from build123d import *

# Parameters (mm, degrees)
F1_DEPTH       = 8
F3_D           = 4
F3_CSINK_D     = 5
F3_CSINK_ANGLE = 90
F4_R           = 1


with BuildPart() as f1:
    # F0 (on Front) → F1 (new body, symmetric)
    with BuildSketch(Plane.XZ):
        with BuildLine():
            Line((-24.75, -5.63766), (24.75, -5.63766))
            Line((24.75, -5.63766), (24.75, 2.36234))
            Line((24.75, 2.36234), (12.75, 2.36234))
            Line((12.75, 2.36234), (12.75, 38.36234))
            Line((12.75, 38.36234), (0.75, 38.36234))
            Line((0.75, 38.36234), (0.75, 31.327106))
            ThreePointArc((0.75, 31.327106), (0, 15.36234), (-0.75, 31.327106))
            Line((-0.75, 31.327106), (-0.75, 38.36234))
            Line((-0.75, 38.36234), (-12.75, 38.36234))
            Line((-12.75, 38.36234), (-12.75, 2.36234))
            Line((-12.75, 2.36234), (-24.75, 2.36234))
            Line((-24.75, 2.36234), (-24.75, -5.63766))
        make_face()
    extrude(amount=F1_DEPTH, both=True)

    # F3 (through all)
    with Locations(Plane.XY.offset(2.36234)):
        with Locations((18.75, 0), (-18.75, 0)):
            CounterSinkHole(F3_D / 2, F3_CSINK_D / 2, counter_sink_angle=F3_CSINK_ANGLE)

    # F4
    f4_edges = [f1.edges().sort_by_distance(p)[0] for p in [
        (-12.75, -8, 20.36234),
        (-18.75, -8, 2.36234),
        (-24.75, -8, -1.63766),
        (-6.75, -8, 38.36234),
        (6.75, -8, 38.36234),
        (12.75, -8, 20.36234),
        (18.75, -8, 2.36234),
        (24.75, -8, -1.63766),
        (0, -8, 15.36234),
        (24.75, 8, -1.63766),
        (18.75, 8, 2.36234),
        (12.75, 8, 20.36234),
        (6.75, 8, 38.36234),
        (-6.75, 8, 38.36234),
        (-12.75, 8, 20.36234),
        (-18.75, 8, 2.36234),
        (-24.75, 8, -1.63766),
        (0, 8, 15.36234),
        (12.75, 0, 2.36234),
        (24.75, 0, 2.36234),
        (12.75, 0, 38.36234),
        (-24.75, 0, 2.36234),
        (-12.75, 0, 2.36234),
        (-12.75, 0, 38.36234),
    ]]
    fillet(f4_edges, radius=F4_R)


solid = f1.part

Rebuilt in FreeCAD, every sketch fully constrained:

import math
import FreeCAD as App
import Part
import Sketcher
from FreeCAD import Vector


def edges_at(feature, points):
    """Names of the edges that pass closest to the given points."""
    edges = feature.Shape.Edges
    near = lambda p: min(range(len(edges)), key=lambda i: edges[i].distToShape(Part.Vertex(*p))[0])
    return sorted({f"Edge{near(p) + 1}" for p in points})

doc = App.newDocument("Part")
body = doc.addObject("PartDesign::Body", "Body")

sketch1 = doc.addObject("Sketcher::SketchObject", "Sketch")
body.addObject(sketch1)
sketch1.AttachmentSupport = (doc.XZ_Plane, [""])
sketch1.MapMode = "FlatFace"
sketch1.addGeometry(Part.LineSegment(Vector(-24.75, -5.63766, 0), Vector(24.75, -5.63766, 0)), False)
sketch1.addGeometry(Part.LineSegment(Vector(24.75, -5.63766, 0), Vector(24.75, 2.36234, 0)), False)
sketch1.addGeometry(Part.LineSegment(Vector(24.75, 2.36234, 0), Vector(12.75, 2.36234, 0)), False)
sketch1.addGeometry(Part.LineSegment(Vector(12.75, 2.36234, 0), Vector(12.75, 38.36234, 0)), False)
sketch1.addGeometry(Part.LineSegment(Vector(12.75, 38.36234, 0), Vector(0.75, 38.36234, 0)), False)
sketch1.addGeometry(Part.LineSegment(Vector(0.75, 38.36234, 0), Vector(0.75, 31.327106, 0)), False)
sketch1.addGeometry(Part.ArcOfCircle(Part.Circle(Vector(0, 23.36234, 0), Vector(0, 0, 1), 8), math.radians(95.379379), math.radians(444.620621)), False)
sketch1.addGeometry(Part.LineSegment(Vector(-0.75, 31.327106, 0), Vector(-0.75, 38.36234, 0)), False)
sketch1.addGeometry(Part.LineSegment(Vector(-0.75, 38.36234, 0), Vector(-12.75, 38.36234, 0)), False)
sketch1.addGeometry(Part.LineSegment(Vector(-12.75, 38.36234, 0), Vector(-12.75, 2.36234, 0)), False)
sketch1.addGeometry(Part.LineSegment(Vector(-12.75, 2.36234, 0), Vector(-24.75, 2.36234, 0)), False)
sketch1.addGeometry(Part.LineSegment(Vector(-24.75, 2.36234, 0), Vector(-24.75, -5.63766, 0)), False)
sketch1.addConstraint(Sketcher.Constraint("Coincident", 0, 2, 1, 1))
sketch1.addConstraint(Sketcher.Constraint("Coincident", 1, 2, 2, 1))
sketch1.addConstraint(Sketcher.Constraint("Coincident", 2, 2, 3, 1))
sketch1.addConstraint(Sketcher.Constraint("Coincident", 3, 2, 4, 1))
sketch1.addConstraint(Sketcher.Constraint("Coincident", 4, 2, 5, 1))
sketch1.addConstraint(Sketcher.Constraint("Coincident", 5, 2, 6, 2))
sketch1.addConstraint(Sketcher.Constraint("Coincident", 6, 1, 7, 1))
sketch1.addConstraint(Sketcher.Constraint("Coincident", 7, 2, 8, 1))
sketch1.addConstraint(Sketcher.Constraint("Coincident", 8, 2, 9, 1))
sketch1.addConstraint(Sketcher.Constraint("Coincident", 9, 2, 10, 1))
sketch1.addConstraint(Sketcher.Constraint("Coincident", 10, 2, 11, 1))
sketch1.addConstraint(Sketcher.Constraint("Coincident", 11, 2, 0, 1))
sketch1.addConstraint(Sketcher.Constraint("Horizontal", 0))
sketch1.addConstraint(Sketcher.Constraint("Vertical", 1))
sketch1.addConstraint(Sketcher.Constraint("Horizontal", 2))
sketch1.addConstraint(Sketcher.Constraint("Vertical", 3))
sketch1.addConstraint(Sketcher.Constraint("Horizontal", 4))
sketch1.addConstraint(Sketcher.Constraint("Vertical", 5))
sketch1.addConstraint(Sketcher.Constraint("Vertical", 7))
sketch1.addConstraint(Sketcher.Constraint("Horizontal", 8))
sketch1.addConstraint(Sketcher.Constraint("Vertical", 9))
sketch1.addConstraint(Sketcher.Constraint("Horizontal", 10))
sketch1.addConstraint(Sketcher.Constraint("Vertical", 11))
sketch1.addConstraint(Sketcher.Constraint("Symmetric", 5, 2, 6, 1, -2))
sketch1.addConstraint(Sketcher.Constraint("Symmetric", 3, 2, 8, 2, -2))
sketch1.addConstraint(Sketcher.Constraint("Symmetric", 1, 2, 10, 2, -2))
sketch1.addConstraint(Sketcher.Constraint("Equal", 2, 4))
sketch1.addConstraint(Sketcher.Constraint("Radius", 6, 8.0))
sketch1.addConstraint(Sketcher.Constraint("DistanceX", 2, 2, 2, 1, 12.0))
sketch1.addConstraint(Sketcher.Constraint("DistanceY", 1, 1, 1, 2, 8.0))
sketch1.addConstraint(Sketcher.Constraint("DistanceY", 3, 1, 3, 2, 36.0))
sketch1.addConstraint(Sketcher.Constraint("DistanceX", 0, 1, 0, 2, 49.5))
sketch1.addConstraint(Sketcher.Constraint("DistanceY", 0, 2, 6, 3, 29.0))
sketch1.addConstraint(Sketcher.Constraint("DistanceY", -1, 1, 6, 3, 23.36234))
pad1 = doc.addObject("PartDesign::Pad", "Pad")
body.addObject(pad1)
pad1.Profile = sketch1
pad1.Length = 16
pad1.Midplane = True

sketch2 = doc.addObject("Sketcher::SketchObject", "Sketch001")
body.addObject(sketch2)
sketch2.AttachmentSupport = (doc.XY_Plane, [""])
sketch2.MapMode = "FlatFace"
sketch2.AttachmentOffset = App.Placement(Vector(0, 0, 2.36234), App.Rotation())
sketch2.addGeometry(Part.Circle(Vector(18.75, 0, 0), Vector(0, 0, 1), 2), False)
sketch2.addGeometry(Part.Circle(Vector(-18.75, 0, 0), Vector(0, 0, 1), 2), False)
sketch2.addConstraint(Sketcher.Constraint("Equal", 0, 1))
sketch2.addConstraint(Sketcher.Constraint("Symmetric", 0, 3, 1, 3, -1, 1))
sketch2.addConstraint(Sketcher.Constraint("PointOnObject", 0, 3, -1))
sketch2.addConstraint(Sketcher.Constraint("Diameter", 0, 4.0))
sketch2.addConstraint(Sketcher.Constraint("DistanceX", 1, 3, 0, 3, 37.5))
doc.recompute()
hole = doc.addObject("PartDesign::Hole", "Hole")
body.addObject(hole)
hole.Profile = sketch2
hole.ThreadType = "None"
hole.Diameter = 4
hole.DepthType = "ThroughAll"
hole.HoleCutType = "Countersink"
hole.HoleCutDiameter = 5
hole.HoleCutCountersinkAngle = 90
doc.recompute()

fillet = doc.addObject("PartDesign::Fillet", "Fillet")
body.addObject(fillet)
fillet.Base = (hole, edges_at(hole, [
    (-12.75, -8, 20.362),
    (-18.75, -8, 2.362),
    (-24.75, -8, -1.638),
    (-6.75, -8, 38.362),
    (6.75, -8, 38.362),
    (12.75, -8, 20.362),
    (18.75, -8, 2.362),
    (24.75, -8, -1.638),
    (0, -8, 15.362),
    (24.75, 8, -1.638),
    (18.75, 8, 2.362),
    (12.75, 8, 20.362),
    (6.75, 8, 38.362),
    (-6.75, 8, 38.362),
    (-12.75, 8, 20.362),
    (-18.75, 8, 2.362),
    (-24.75, 8, -1.638),
    (0, 8, 15.362),
    (12.75, 0, 2.362),
    (24.75, 0, 2.362),
    (12.75, 0, 38.362),
    (-24.75, 0, 2.362),
    (-12.75, 0, 2.362),
    (-12.75, 0, 38.362),
]))
fillet.Radius = 1

doc.recompute()
